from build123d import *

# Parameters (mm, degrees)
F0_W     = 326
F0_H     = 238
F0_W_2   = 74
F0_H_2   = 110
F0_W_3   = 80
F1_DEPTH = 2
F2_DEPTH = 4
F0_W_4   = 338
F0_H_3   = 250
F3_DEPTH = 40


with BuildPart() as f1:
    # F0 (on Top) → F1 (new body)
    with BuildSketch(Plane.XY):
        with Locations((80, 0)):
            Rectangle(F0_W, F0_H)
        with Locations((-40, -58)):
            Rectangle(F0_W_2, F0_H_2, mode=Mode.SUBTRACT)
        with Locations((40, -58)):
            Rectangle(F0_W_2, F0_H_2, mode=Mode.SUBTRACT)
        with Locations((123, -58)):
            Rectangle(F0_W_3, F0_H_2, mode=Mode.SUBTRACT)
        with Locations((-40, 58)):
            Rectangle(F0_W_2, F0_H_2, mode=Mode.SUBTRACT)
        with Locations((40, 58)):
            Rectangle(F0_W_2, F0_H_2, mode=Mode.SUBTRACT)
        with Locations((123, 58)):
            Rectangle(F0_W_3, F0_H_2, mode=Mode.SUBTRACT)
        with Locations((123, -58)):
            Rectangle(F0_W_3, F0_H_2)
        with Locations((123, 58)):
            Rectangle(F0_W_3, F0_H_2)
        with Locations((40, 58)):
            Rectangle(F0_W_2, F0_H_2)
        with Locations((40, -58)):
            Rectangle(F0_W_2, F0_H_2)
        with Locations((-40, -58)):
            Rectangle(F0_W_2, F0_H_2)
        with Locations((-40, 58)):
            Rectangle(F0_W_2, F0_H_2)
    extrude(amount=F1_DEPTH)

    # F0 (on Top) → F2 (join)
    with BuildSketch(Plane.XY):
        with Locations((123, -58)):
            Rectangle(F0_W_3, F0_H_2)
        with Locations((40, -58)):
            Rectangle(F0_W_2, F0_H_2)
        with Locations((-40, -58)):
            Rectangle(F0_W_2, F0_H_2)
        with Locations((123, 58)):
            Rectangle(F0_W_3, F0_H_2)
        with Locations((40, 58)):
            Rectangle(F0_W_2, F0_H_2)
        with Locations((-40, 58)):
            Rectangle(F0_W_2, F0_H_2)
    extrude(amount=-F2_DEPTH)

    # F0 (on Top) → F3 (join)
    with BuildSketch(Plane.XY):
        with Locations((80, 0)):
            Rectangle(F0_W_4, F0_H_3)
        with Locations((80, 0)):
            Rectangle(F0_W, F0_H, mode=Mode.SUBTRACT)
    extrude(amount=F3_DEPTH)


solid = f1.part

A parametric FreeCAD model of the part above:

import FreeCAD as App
import Part
import Sketcher

V = App.Vector
Q = App.Units.Quantity


def add_polygon(sketch, points):
    """Adds a closed chain of lines whose ends are joined by coincident constraints."""
    first, n = sketch.GeometryCount, len(points)
    for a, b in zip(points, points[1:] + points[:1]):
        sketch.addGeometry(Part.LineSegment(App.Vector(*a, 0), App.Vector(*b, 0)), False)
    for i in range(n):
        sketch.addConstraint(Sketcher.Constraint("Coincident", first + i, 2, first + (i + 1) % n, 1))

doc = App.newDocument("Part")
body = doc.addObject("PartDesign::Body", "Body")

# Sketch on XY plane
sketch1 = body.newObject("Sketcher::SketchObject", "Sketch")
sketch1.AttachmentSupport = (doc.getObject("XY_Plane"), [""])
sketch1.MapMode = "FlatFace"
add_polygon(sketch1, [(-83, 119), (-83, -119), (243, -119), (243, 119)])  # lines 0-3
sketch1.addConstraint([
    Sketcher.Constraint("Vertical", 0),
    Sketcher.Constraint("Horizontal", 1),
    Sketcher.Constraint("Vertical", 2),
    Sketcher.Constraint("Horizontal", 3),
    Sketcher.Constraint("DistanceX", 1, 1, 1, 2, Q("326 mm")),
    Sketcher.Constraint("DistanceY", 0, 2, 0, 1, Q("238 mm")),
    Sketcher.Constraint("DistanceX", 0, 2, -1, 1, Q("83 mm")),
    Sketcher.Constraint("DistanceY", 0, 2, -1, 1, Q("119 mm")),
])
pad1 = body.newObject("PartDesign::Pad", "Pad")
pad1.Profile = sketch1
pad1.Length = 2

# Sketch on XY plane
sketch2 = body.newObject("Sketcher::SketchObject", "Sketch001")
sketch2.AttachmentSupport = (doc.getObject("XY_Plane"), [""])
sketch2.MapMode = "FlatFace"
add_polygon(sketch2, [(83, -3), (83, -113), (163, -113), (163, -3)])  # lines 0-3
add_polygon(sketch2, [(3, -3), (3, -113), (77, -113), (77, -3)])  # lines 4-7
add_polygon(sketch2, [(-77, -3), (-77, -113), (-3, -113), (-3, -3)])  # lines 8-11
add_polygon(sketch2, [(83, 113), (83, 3), (163, 3), (163, 113)])  # lines 12-15
add_polygon(sketch2, [(3, 113), (3, 3), (77, 3), (77, 113)])  # lines 16-19
add_polygon(sketch2, [(-77, 113), (-77, 3), (-3, 3), (-3, 113)])  # lines 20-23
sketch2.addConstraint([
    Sketcher.Constraint("Vertical", 0),
    Sketcher.Constraint("Horizontal", 1),
    Sketcher.Constraint("Vertical", 2),
    Sketcher.Constraint("Horizontal", 3),
    Sketcher.Constraint("Vertical", 4),
    Sketcher.Constraint("Horizontal", 5),
    Sketcher.Constraint("Vertical", 6),
    Sketcher.Constraint("Horizontal", 7),
    Sketcher.Constraint("Vertical", 8),
    Sketcher.Constraint("Horizontal", 9),
    Sketcher.Constraint("Vertical", 10),
    Sketcher.Constraint("Horizontal", 11),
    Sketcher.Constraint("Vertical", 12),
    Sketcher.Constraint("Horizontal", 13),
    Sketcher.Constraint("Vertical", 14),
    Sketcher.Constraint("Horizontal", 15),
    Sketcher.Constraint("Vertical", 16),
    Sketcher.Constraint("Horizontal", 17),
    Sketcher.Constraint("Vertical", 18),
    Sketcher.Constraint("Horizontal", 19),
    Sketcher.Constraint("Vertical", 20),
    Sketcher.Constraint("Horizontal", 21),
    Sketcher.Constraint("Vertical", 22),
    Sketcher.Constraint("Horizontal", 23),
    Sketcher.Constraint("Symmetric", 10, 2, 16, 2, -1, 1),
    Sketcher.Constraint("Symmetric", 8, 2, 18, 2, -1, 1),
    Sketcher.Constraint("Symmetric", 6, 2, 20, 2, -1, 1),
    Sketcher.Constraint("Symmetric", 4, 2, 22, 2, -1, 1),
    Sketcher.Constraint("Symmetric", 5, 2, 8, 2, -2),
    Sketcher.Constraint("Symmetric", 7, 2, 10, 2, -2),
    Sketcher.Constraint("Symmetric", 3, 2, 12, 2, -1),
    Sketcher.Constraint("Symmetric", 1, 2, 14, 2, -1),
    Sketcher.Constraint("Horizontal", 1, 2, 4, 2),
    Sketcher.Constraint("Horizontal", 3, 2, 6, 2),
    Sketcher.Constraint("DistanceX", 1, 1, 1, 2, Q("80 mm")),
    Sketcher.Constraint("DistanceX", 5, 1, 5, 2, Q("74 mm")),
    Sketcher.Constraint("DistanceY", 0, 2, 0, 1, Q("110 mm")),
    Sketcher.Constraint("DistanceX", -1, 1, 0, 2, Q("83 mm")),
    Sketcher.Constraint("DistanceY", 0, 2, -1, 1, Q("113 mm")),
    Sketcher.Constraint("DistanceX", -1, 1, 4, 2, Q("3 mm")),
])
pad2 = body.newObject("PartDesign::Pad", "Pad001")
pad2.Profile = sketch2
pad2.Length = 4
pad2.Reversed = True

# Sketch on XY plane
sketch3 = body.newObject("Sketcher::SketchObject", "Sketch002")
sketch3.AttachmentSupport = (doc.getObject("XY_Plane"), [""])
sketch3.MapMode = "FlatFace"
add_polygon(sketch3, [(-89, 125), (-89, -125), (249, -125), (249, 125)])  # lines 0-3
add_polygon(sketch3, [(243, -119), (-83, -119), (-83, 119), (243, 119)])  # lines 4-7
sketch3.addConstraint([
    Sketcher.Constraint("Vertical", 0),
    Sketcher.Constraint("Horizontal", 1),
    Sketcher.Constraint("Vertical", 2),
    Sketcher.Constraint("Horizontal", 3),
    Sketcher.Constraint("Horizontal", 4),
    Sketcher.Constraint("Vertical", 5),
    Sketcher.Constraint("Horizontal", 6),
    Sketcher.Constraint("Vertical", 7),
    Sketcher.Constraint("DistanceX", 1, 1, 1, 2, Q("338 mm")),
    Sketcher.Constraint("DistanceX", 4, 2, 4, 1, Q("326 mm")),
    Sketcher.Constraint("DistanceY", 0, 2, 0, 1, Q("250 mm")),
    Sketcher.Constraint("DistanceY", 5, 1, 5, 2, Q("238 mm")),
    Sketcher.Constraint("DistanceX", 0, 2, -1, 1, Q("89 mm")),
    Sketcher.Constraint("DistanceY", 0, 2, -1, 1, Q("125 mm")),
    Sketcher.Constraint("DistanceX", 4, 2, -1, 1, Q("83 mm")),
    Sketcher.Constraint("DistanceY", 4, 2, -1, 1, Q("119 mm")),
])
pad3 = body.newObject("PartDesign::Pad", "Pad002")
pad3.Profile = sketch3
pad3.Length = 40

doc.recompute()
